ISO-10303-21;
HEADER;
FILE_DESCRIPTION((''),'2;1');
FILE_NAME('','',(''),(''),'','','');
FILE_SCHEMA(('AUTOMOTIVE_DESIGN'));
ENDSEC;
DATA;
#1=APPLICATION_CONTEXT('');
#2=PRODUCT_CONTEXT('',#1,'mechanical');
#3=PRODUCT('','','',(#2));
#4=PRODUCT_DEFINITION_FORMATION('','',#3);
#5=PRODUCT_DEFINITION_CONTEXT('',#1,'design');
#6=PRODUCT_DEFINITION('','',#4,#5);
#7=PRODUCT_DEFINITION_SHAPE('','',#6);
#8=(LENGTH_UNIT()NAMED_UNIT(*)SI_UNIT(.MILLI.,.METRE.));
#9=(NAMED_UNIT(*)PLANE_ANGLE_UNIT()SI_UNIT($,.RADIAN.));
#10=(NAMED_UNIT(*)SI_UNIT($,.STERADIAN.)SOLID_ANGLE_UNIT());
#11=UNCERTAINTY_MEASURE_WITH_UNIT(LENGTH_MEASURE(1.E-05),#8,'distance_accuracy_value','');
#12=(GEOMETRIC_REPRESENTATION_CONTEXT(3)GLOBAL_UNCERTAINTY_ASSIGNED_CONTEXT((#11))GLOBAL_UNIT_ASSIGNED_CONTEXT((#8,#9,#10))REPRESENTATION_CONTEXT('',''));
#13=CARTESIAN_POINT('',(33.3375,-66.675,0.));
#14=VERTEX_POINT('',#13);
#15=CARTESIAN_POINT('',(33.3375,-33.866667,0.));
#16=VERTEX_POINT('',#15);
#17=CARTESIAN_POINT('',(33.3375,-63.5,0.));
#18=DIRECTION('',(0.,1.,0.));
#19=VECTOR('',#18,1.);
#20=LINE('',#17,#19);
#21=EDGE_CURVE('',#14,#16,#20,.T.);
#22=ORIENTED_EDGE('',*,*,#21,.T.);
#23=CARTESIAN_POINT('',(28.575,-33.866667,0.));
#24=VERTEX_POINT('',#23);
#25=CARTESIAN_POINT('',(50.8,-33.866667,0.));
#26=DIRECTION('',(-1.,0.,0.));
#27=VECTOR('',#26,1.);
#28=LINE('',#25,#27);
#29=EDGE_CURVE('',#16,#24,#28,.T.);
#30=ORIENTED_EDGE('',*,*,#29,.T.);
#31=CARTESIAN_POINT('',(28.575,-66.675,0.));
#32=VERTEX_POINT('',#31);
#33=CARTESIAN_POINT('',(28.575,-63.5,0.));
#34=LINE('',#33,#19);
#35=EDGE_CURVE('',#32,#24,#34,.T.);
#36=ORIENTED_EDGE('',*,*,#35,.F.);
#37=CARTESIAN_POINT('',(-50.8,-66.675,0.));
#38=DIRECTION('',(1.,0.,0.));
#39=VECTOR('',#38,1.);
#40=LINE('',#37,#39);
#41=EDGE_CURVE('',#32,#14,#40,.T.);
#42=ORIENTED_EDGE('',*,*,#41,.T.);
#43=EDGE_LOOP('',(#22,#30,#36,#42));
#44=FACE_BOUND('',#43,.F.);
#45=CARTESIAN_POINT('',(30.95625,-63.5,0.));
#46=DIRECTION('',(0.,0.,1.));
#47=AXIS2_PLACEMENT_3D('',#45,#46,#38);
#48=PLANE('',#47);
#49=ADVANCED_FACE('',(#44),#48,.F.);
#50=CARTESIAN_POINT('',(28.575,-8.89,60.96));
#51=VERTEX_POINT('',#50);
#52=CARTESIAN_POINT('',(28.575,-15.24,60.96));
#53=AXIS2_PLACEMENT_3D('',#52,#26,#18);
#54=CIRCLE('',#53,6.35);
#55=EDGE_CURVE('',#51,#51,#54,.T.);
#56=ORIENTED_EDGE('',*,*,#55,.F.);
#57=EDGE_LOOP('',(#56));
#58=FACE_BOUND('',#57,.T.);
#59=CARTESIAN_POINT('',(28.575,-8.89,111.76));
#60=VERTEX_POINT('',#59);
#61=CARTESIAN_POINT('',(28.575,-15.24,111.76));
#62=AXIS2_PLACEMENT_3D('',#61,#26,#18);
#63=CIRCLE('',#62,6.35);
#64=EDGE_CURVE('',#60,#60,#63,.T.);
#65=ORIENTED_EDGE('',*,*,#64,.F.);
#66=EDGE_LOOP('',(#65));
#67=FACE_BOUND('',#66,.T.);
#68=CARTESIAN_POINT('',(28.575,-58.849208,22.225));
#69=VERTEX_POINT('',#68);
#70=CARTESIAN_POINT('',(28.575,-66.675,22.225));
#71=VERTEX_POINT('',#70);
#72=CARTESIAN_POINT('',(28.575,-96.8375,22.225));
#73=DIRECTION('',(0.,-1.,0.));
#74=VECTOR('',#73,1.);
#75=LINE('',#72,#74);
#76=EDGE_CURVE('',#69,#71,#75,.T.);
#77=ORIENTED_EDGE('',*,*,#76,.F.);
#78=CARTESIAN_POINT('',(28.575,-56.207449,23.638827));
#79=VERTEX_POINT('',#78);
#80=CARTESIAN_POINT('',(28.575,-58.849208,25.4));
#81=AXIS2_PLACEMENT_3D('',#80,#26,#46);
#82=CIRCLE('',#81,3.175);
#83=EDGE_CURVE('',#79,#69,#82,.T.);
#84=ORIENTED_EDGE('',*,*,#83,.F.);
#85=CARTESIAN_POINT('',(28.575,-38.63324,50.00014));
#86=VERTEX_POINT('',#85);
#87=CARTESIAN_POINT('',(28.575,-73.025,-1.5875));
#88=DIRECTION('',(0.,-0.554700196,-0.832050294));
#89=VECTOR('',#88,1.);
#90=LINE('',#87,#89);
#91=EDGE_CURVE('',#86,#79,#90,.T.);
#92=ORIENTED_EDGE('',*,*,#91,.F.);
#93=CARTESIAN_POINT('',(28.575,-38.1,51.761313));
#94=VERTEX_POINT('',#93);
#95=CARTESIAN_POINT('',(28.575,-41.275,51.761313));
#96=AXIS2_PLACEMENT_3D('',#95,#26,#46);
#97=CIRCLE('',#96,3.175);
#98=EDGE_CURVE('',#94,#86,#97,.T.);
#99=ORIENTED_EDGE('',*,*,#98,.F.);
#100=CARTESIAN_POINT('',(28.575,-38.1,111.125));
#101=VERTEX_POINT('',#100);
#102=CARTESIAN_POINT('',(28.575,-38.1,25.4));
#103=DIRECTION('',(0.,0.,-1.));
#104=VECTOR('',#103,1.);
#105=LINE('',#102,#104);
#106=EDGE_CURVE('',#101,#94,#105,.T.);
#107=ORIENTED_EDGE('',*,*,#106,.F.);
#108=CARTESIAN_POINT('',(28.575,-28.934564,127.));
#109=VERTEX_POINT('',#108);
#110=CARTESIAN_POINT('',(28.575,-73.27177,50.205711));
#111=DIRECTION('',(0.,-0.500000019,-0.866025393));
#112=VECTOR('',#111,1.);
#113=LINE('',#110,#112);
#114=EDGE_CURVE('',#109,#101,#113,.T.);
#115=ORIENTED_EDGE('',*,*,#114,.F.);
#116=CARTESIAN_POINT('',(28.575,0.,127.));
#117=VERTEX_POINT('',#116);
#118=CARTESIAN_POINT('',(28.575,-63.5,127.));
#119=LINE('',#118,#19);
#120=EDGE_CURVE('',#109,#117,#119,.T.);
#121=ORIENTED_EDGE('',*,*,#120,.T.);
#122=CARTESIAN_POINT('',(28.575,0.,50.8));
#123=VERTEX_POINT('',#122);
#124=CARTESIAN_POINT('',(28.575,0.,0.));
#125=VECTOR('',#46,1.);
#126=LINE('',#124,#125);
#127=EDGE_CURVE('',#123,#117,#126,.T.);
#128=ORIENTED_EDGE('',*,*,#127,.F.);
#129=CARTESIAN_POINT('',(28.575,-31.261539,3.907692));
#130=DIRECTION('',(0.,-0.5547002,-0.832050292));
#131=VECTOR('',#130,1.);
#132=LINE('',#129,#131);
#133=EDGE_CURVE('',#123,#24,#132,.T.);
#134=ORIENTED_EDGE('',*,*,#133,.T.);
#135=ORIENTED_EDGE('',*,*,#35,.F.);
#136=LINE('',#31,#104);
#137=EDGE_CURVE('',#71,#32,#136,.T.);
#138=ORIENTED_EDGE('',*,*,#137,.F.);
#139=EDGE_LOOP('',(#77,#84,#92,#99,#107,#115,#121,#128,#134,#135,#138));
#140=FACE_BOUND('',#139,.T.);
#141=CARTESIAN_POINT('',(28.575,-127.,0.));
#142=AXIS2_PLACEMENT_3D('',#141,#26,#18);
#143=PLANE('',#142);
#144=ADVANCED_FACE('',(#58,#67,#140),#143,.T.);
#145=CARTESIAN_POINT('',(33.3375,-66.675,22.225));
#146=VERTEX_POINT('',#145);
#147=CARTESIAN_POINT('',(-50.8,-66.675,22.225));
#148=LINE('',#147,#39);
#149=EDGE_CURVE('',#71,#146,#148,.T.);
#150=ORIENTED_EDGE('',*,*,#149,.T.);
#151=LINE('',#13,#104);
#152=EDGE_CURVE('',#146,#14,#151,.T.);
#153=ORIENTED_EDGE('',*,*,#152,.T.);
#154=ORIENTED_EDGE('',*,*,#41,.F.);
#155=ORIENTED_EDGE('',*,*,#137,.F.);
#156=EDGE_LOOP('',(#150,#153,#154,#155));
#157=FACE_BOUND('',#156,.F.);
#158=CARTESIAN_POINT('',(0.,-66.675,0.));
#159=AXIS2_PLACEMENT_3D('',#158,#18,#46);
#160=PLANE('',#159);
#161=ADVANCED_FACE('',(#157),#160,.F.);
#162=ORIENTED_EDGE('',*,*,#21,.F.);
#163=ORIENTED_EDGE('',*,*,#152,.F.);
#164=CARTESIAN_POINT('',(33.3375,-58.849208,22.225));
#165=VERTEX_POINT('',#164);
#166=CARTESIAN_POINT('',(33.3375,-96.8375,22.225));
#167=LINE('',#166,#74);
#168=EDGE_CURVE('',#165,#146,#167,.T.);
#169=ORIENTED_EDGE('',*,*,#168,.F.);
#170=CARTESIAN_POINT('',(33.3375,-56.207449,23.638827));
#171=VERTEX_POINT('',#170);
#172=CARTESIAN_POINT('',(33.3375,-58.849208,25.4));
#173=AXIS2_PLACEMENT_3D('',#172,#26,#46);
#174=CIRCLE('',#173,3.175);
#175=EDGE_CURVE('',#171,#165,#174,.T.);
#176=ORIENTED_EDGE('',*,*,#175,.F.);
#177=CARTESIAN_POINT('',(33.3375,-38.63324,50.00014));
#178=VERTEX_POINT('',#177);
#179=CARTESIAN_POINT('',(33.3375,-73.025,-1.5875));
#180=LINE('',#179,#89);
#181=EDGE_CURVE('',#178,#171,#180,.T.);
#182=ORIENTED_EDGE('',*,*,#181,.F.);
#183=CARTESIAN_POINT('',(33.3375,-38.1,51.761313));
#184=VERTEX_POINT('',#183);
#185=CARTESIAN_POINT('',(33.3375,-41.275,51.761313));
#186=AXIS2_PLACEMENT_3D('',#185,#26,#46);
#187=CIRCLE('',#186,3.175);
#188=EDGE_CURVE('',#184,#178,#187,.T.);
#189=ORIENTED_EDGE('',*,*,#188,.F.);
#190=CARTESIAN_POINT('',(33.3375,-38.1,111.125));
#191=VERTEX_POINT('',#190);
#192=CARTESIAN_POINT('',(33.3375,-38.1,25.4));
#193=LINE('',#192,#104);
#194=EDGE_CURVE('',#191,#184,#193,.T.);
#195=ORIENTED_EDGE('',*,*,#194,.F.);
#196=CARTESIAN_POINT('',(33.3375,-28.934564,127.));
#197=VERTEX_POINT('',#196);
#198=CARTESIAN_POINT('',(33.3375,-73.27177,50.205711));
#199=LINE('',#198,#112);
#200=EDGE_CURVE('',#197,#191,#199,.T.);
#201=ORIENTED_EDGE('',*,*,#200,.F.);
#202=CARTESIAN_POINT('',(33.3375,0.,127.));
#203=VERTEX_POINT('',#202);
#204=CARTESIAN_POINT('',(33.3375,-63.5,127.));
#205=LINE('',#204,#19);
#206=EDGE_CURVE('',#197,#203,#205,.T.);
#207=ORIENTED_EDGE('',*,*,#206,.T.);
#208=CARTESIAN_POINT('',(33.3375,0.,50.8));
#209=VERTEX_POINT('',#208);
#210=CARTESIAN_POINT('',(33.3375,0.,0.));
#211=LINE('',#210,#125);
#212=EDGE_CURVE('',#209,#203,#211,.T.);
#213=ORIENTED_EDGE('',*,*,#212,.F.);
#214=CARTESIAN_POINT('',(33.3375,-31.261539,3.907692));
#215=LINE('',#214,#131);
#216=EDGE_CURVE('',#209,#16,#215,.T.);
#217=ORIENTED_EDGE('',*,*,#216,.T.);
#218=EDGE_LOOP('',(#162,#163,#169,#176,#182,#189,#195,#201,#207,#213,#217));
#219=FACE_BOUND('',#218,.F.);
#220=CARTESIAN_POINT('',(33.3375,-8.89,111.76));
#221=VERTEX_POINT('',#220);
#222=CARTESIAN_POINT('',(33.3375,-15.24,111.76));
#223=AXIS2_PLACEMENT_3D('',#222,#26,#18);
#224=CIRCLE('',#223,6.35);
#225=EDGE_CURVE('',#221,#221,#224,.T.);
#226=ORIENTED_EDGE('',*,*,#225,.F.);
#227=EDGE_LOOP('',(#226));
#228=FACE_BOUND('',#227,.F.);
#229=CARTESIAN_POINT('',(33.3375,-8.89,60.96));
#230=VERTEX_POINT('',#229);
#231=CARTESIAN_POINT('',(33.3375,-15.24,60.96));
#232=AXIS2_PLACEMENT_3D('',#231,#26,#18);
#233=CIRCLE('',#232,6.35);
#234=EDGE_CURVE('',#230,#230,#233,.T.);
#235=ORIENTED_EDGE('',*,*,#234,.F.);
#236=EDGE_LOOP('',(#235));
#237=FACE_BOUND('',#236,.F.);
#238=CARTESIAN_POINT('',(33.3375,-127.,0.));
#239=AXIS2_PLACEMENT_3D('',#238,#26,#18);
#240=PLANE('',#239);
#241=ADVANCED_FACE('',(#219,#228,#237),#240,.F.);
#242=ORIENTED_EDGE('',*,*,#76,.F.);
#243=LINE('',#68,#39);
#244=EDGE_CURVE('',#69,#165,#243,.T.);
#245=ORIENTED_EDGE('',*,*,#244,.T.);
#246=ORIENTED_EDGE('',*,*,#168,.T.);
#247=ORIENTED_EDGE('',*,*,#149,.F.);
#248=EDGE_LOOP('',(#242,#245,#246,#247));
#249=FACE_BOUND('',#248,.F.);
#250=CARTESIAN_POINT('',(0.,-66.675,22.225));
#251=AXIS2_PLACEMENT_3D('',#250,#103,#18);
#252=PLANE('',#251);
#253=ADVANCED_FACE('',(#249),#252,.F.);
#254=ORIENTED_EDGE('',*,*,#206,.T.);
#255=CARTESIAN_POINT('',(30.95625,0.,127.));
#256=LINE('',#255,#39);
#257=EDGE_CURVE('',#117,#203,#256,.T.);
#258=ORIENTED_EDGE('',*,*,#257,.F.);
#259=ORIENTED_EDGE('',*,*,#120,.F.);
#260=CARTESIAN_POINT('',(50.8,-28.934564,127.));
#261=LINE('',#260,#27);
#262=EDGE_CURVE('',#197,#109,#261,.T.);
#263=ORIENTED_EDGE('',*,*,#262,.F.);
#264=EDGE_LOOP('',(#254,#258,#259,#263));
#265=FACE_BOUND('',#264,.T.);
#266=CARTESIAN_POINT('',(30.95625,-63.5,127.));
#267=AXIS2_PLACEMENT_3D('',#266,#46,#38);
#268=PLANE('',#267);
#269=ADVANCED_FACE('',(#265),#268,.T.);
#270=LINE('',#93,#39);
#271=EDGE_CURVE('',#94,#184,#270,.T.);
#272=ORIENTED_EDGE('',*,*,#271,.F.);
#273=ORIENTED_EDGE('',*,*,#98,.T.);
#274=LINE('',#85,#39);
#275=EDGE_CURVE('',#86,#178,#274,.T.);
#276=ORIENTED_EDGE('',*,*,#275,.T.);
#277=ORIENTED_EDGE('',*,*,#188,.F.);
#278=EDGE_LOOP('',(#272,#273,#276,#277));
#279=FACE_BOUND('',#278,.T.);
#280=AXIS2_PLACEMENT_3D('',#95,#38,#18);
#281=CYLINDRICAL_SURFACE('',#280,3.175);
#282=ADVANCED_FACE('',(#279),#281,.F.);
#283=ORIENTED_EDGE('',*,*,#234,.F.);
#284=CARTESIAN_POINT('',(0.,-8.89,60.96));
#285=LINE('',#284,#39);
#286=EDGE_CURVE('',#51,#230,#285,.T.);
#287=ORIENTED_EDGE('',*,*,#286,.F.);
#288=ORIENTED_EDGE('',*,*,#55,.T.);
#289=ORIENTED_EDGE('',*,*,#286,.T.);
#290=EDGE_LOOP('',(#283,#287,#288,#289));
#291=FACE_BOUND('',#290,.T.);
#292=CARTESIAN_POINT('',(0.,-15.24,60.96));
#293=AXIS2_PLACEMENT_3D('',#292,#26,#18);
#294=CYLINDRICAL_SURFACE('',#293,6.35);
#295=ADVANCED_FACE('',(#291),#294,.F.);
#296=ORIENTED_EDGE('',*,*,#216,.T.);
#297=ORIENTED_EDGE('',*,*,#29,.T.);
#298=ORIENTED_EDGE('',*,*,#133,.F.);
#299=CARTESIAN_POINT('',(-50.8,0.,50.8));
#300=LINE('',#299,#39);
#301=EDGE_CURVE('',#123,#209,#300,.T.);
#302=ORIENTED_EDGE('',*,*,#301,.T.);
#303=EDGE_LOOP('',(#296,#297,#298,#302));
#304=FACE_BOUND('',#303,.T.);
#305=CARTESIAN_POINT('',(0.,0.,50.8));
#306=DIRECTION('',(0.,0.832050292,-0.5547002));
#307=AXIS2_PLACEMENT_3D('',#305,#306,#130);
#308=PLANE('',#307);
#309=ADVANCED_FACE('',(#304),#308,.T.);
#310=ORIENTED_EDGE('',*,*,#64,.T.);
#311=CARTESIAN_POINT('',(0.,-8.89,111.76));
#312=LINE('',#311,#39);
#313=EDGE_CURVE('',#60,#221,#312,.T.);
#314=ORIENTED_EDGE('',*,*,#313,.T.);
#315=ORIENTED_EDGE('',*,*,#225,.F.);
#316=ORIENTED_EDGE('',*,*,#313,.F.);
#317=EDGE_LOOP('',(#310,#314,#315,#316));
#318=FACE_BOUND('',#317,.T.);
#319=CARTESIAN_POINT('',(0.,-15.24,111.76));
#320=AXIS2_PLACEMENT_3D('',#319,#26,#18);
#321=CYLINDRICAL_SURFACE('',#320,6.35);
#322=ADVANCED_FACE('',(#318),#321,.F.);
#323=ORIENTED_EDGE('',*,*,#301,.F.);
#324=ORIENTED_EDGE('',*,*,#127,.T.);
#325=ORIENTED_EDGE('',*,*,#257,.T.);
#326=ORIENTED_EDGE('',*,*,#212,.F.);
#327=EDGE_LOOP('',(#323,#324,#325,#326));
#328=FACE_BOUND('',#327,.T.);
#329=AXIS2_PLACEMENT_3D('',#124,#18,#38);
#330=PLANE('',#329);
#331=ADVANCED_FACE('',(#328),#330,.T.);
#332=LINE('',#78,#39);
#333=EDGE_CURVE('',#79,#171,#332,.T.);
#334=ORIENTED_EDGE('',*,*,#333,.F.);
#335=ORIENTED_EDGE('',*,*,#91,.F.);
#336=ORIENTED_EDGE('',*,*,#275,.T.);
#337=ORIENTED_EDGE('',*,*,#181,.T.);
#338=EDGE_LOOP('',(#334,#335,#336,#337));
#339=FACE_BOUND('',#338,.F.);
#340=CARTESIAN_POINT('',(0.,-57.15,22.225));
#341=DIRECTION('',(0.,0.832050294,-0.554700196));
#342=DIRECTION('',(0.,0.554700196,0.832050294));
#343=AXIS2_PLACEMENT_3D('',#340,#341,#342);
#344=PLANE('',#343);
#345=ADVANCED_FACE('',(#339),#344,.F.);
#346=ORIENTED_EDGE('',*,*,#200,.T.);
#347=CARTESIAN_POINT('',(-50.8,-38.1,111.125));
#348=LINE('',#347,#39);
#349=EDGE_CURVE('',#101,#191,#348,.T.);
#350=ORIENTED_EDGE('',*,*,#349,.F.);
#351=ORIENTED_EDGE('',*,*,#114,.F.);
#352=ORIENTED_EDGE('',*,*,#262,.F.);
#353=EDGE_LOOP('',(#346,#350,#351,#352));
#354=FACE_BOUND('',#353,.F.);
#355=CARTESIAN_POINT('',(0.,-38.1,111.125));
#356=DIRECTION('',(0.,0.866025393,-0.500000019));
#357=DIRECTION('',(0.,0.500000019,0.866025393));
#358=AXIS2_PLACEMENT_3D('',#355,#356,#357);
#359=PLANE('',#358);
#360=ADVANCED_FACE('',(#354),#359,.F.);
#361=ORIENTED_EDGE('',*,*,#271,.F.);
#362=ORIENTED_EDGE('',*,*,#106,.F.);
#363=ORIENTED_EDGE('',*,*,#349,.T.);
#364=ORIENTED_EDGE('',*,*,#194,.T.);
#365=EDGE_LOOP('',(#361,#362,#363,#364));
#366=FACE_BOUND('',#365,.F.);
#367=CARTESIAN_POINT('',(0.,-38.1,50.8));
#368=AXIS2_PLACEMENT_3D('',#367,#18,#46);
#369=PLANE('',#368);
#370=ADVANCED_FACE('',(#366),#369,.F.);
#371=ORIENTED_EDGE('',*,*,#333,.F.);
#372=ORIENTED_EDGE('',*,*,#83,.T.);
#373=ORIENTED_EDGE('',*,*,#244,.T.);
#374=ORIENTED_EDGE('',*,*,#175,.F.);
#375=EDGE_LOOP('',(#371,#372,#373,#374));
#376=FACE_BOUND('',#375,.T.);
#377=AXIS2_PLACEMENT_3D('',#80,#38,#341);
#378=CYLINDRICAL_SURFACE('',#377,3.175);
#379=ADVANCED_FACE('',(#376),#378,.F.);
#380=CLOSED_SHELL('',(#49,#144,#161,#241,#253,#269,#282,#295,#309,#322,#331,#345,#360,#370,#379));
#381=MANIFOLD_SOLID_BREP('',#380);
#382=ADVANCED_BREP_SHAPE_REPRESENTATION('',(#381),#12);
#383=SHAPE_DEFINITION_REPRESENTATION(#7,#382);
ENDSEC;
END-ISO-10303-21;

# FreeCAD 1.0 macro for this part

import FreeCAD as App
import Part
import Sketcher

V = App.Vector
Q = App.Units.Quantity


def edges_at(feature, points):
    """Names of the edges that pass closest to the given points."""
    edges = feature.Shape.Edges
    near = lambda p: min(range(len(edges)), key=lambda i: edges[i].distToShape(Part.Vertex(*p))[0])
    return sorted({f"Edge{near(p) + 1}" for p in points})

doc = App.newDocument("Part")
body = doc.addObject("PartDesign::Body", "Body")

sketch1 = body.newObject("Sketcher::SketchObject", "Sketch")
sketch1.AttachmentSupport = (doc.getObject("XY_Plane"), [""])
sketch1.MapMode = "FlatFace"
sketch1.addGeometry([
    Part.LineSegment(V(28.6, 0, 0), V(28.6, -127, 0)),
    Part.LineSegment(V(28.6, -127, 0), V(33.3, -127, 0)),
    Part.LineSegment(V(33.3, -127, 0), V(33.3, 0, 0)),
    Part.LineSegment(V(33.3, 0, 0), V(28.6, 0, 0)),
], False)
sketch1.addConstraint([
    Sketcher.Constraint("Coincident", 0, 2, 1, 1),
    Sketcher.Constraint("Coincident", 1, 2, 2, 1),
    Sketcher.Constraint("Coincident", 2, 2, 3, 1),
    Sketcher.Constraint("Coincident", 3, 2, 0, 1),
    Sketcher.Constraint("Vertical", 0),
    Sketcher.Constraint("Horizontal", 1),
    Sketcher.Constraint("Vertical", 2),
    Sketcher.Constraint("Horizontal", 3),
    Sketcher.Constraint("PointOnObject", 2, 2, -1),
    Sketcher.Constraint("DistanceY", 0, 2, 0, 1, Q("5 in")),
    Sketcher.Constraint("DistanceX", 1, 1, 1, 2, Q("0.1875 in")),
    Sketcher.Constraint("DistanceX", -1, 1, 0, 2, Q("1.125 in")),
])
pad1 = body.newObject("PartDesign::Pad", "Pad")
pad1.Profile = sketch1
pad1.Length = Q("5 in")

sketch2 = body.newObject("Sketcher::SketchObject", "Sketch001")
sketch2.AttachmentSupport = (doc.getObject("YZ_Plane"), [""])
sketch2.MapMode = "FlatFace"
sketch2.addGeometry([
    Part.Circle(V(-15, 112, 0), V(0, 0, 1), 6),
    Part.Circle(V(-15, 61, 0), V(0, 0, 1), 6),
    Part.LineSegment(V(0, 0, 0), V(0, 51, 0)),
    Part.LineSegment(V(0, 51, 0), V(-34, 0, 0)),
    Part.LineSegment(V(-34, 0, 0), V(0, 0, 0)),
    Part.LineSegment(V(-127, 0, 0), V(-67, 0, 0)),
    Part.LineSegment(V(-67, 0, 0), V(-67, 22, 0)),
    Part.LineSegment(V(-67, 22, 0), V(-57, 22, 0)),
    Part.LineSegment(V(-57, 22, 0), V(-38, 51, 0)),
    Part.LineSegment(V(-38, 51, 0), V(-38, 111, 0)),
    Part.LineSegment(V(-38, 111, 0), V(-29, 127, 0)),
    Part.LineSegment(V(-29, 127, 0), V(-127, 127, 0)),
    Part.LineSegment(V(-127, 127, 0), V(-127, 0, 0)),
], False)
sketch2.addConstraint([
    Sketcher.Constraint("Coincident", 2, 2, 3, 1),
    Sketcher.Constraint("Coincident", 3, 2, 4, 1),
    Sketcher.Constraint("Coincident", 4, 2, 2, 1),
    Sketcher.Constraint("Coincident", 5, 2, 6, 1),
    Sketcher.Constraint("Coincident", 6, 2, 7, 1),
    Sketcher.Constraint("Coincident", 7, 2, 8, 1),
    Sketcher.Constraint("Coincident", 8, 2, 9, 1),
    Sketcher.Constraint("Coincident", 9, 2, 10, 1),
    Sketcher.Constraint("Coincident", 10, 2, 11, 1),
    Sketcher.Constraint("Coincident", 11, 2, 12, 1),
    Sketcher.Constraint("Coincident", 12, 2, 5, 1),
    Sketcher.Constraint("Vertical", 2),
    Sketcher.Constraint("Horizontal", 4),
    Sketcher.Constraint("Horizontal", 5),
    Sketcher.Constraint("Vertical", 6),
    Sketcher.Constraint("Horizontal", 7),
    Sketcher.Constraint("Vertical", 9),
    Sketcher.Constraint("Horizontal", 11),
    Sketcher.Constraint("Vertical", 12),
    Sketcher.Constraint("Coincident", 4, 2, -1, 1),
    Sketcher.Constraint("Equal", 0, 1),
    Sketcher.Constraint("PointOnObject", 5, 2, -1),
    Sketcher.Constraint("Parallel", 3, 8),
    Sketcher.Constraint("Horizontal", 2, 2, 8, 2),
    Sketcher.Constraint("Vertical", 0, 3, 1, 3),
    Sketcher.Constraint("Equal", 5, 9),
    Sketcher.Constraint("Diameter", 0, Q("0.5 in")),
    Sketcher.Constraint("DistanceY", 2, 1, 2, 2, Q("2 in")),
    Sketcher.Constraint("DistanceY", 12, 2, 12, 1, Q("5 in")),
    Sketcher.Constraint("DistanceX", 11, 2, -1, 1, Q("5 in")),
    Sketcher.Constraint("Angle", 10, Q("59.999999 deg")),
    Sketcher.Constraint("DistanceY", 1, 3, 0, 3, Q("2 in")),
    Sketcher.Constraint("DistanceX", 0, 3, -1, 1, Q("0.6 in")),
    Sketcher.Constraint("DistanceY", -1, 1, 0, 3, Q("4.4 in")),
    Sketcher.Constraint("DistanceX", 8, 2, -1, 1, Q("1.5 in")),
    Sketcher.Constraint("DistanceY", 7, 2, 9, 2, Q("3.5 in")),
    Sketcher.Constraint("DistanceX", 5, 1, 5, 2, Q("2.375 in")),
    Sketcher.Constraint("DistanceX", 7, 1, 7, 2, Q("0.375 in")),
])
pocket1 = body.newObject("PartDesign::Pocket", "Pocket")
pocket1.Profile = sketch2
pocket1.Length = Q("4 in")
pocket1.Midplane = True
doc.recompute()

fillet = body.newObject("PartDesign::Fillet", "Fillet")
fillet.Base = (pocket1, edges_at(pocket1, [(30.956, -57.15, 22.225), (30.956, -38.1, 50.8)]))
fillet.Radius = Q("0.125 in")

doc.recompute()
